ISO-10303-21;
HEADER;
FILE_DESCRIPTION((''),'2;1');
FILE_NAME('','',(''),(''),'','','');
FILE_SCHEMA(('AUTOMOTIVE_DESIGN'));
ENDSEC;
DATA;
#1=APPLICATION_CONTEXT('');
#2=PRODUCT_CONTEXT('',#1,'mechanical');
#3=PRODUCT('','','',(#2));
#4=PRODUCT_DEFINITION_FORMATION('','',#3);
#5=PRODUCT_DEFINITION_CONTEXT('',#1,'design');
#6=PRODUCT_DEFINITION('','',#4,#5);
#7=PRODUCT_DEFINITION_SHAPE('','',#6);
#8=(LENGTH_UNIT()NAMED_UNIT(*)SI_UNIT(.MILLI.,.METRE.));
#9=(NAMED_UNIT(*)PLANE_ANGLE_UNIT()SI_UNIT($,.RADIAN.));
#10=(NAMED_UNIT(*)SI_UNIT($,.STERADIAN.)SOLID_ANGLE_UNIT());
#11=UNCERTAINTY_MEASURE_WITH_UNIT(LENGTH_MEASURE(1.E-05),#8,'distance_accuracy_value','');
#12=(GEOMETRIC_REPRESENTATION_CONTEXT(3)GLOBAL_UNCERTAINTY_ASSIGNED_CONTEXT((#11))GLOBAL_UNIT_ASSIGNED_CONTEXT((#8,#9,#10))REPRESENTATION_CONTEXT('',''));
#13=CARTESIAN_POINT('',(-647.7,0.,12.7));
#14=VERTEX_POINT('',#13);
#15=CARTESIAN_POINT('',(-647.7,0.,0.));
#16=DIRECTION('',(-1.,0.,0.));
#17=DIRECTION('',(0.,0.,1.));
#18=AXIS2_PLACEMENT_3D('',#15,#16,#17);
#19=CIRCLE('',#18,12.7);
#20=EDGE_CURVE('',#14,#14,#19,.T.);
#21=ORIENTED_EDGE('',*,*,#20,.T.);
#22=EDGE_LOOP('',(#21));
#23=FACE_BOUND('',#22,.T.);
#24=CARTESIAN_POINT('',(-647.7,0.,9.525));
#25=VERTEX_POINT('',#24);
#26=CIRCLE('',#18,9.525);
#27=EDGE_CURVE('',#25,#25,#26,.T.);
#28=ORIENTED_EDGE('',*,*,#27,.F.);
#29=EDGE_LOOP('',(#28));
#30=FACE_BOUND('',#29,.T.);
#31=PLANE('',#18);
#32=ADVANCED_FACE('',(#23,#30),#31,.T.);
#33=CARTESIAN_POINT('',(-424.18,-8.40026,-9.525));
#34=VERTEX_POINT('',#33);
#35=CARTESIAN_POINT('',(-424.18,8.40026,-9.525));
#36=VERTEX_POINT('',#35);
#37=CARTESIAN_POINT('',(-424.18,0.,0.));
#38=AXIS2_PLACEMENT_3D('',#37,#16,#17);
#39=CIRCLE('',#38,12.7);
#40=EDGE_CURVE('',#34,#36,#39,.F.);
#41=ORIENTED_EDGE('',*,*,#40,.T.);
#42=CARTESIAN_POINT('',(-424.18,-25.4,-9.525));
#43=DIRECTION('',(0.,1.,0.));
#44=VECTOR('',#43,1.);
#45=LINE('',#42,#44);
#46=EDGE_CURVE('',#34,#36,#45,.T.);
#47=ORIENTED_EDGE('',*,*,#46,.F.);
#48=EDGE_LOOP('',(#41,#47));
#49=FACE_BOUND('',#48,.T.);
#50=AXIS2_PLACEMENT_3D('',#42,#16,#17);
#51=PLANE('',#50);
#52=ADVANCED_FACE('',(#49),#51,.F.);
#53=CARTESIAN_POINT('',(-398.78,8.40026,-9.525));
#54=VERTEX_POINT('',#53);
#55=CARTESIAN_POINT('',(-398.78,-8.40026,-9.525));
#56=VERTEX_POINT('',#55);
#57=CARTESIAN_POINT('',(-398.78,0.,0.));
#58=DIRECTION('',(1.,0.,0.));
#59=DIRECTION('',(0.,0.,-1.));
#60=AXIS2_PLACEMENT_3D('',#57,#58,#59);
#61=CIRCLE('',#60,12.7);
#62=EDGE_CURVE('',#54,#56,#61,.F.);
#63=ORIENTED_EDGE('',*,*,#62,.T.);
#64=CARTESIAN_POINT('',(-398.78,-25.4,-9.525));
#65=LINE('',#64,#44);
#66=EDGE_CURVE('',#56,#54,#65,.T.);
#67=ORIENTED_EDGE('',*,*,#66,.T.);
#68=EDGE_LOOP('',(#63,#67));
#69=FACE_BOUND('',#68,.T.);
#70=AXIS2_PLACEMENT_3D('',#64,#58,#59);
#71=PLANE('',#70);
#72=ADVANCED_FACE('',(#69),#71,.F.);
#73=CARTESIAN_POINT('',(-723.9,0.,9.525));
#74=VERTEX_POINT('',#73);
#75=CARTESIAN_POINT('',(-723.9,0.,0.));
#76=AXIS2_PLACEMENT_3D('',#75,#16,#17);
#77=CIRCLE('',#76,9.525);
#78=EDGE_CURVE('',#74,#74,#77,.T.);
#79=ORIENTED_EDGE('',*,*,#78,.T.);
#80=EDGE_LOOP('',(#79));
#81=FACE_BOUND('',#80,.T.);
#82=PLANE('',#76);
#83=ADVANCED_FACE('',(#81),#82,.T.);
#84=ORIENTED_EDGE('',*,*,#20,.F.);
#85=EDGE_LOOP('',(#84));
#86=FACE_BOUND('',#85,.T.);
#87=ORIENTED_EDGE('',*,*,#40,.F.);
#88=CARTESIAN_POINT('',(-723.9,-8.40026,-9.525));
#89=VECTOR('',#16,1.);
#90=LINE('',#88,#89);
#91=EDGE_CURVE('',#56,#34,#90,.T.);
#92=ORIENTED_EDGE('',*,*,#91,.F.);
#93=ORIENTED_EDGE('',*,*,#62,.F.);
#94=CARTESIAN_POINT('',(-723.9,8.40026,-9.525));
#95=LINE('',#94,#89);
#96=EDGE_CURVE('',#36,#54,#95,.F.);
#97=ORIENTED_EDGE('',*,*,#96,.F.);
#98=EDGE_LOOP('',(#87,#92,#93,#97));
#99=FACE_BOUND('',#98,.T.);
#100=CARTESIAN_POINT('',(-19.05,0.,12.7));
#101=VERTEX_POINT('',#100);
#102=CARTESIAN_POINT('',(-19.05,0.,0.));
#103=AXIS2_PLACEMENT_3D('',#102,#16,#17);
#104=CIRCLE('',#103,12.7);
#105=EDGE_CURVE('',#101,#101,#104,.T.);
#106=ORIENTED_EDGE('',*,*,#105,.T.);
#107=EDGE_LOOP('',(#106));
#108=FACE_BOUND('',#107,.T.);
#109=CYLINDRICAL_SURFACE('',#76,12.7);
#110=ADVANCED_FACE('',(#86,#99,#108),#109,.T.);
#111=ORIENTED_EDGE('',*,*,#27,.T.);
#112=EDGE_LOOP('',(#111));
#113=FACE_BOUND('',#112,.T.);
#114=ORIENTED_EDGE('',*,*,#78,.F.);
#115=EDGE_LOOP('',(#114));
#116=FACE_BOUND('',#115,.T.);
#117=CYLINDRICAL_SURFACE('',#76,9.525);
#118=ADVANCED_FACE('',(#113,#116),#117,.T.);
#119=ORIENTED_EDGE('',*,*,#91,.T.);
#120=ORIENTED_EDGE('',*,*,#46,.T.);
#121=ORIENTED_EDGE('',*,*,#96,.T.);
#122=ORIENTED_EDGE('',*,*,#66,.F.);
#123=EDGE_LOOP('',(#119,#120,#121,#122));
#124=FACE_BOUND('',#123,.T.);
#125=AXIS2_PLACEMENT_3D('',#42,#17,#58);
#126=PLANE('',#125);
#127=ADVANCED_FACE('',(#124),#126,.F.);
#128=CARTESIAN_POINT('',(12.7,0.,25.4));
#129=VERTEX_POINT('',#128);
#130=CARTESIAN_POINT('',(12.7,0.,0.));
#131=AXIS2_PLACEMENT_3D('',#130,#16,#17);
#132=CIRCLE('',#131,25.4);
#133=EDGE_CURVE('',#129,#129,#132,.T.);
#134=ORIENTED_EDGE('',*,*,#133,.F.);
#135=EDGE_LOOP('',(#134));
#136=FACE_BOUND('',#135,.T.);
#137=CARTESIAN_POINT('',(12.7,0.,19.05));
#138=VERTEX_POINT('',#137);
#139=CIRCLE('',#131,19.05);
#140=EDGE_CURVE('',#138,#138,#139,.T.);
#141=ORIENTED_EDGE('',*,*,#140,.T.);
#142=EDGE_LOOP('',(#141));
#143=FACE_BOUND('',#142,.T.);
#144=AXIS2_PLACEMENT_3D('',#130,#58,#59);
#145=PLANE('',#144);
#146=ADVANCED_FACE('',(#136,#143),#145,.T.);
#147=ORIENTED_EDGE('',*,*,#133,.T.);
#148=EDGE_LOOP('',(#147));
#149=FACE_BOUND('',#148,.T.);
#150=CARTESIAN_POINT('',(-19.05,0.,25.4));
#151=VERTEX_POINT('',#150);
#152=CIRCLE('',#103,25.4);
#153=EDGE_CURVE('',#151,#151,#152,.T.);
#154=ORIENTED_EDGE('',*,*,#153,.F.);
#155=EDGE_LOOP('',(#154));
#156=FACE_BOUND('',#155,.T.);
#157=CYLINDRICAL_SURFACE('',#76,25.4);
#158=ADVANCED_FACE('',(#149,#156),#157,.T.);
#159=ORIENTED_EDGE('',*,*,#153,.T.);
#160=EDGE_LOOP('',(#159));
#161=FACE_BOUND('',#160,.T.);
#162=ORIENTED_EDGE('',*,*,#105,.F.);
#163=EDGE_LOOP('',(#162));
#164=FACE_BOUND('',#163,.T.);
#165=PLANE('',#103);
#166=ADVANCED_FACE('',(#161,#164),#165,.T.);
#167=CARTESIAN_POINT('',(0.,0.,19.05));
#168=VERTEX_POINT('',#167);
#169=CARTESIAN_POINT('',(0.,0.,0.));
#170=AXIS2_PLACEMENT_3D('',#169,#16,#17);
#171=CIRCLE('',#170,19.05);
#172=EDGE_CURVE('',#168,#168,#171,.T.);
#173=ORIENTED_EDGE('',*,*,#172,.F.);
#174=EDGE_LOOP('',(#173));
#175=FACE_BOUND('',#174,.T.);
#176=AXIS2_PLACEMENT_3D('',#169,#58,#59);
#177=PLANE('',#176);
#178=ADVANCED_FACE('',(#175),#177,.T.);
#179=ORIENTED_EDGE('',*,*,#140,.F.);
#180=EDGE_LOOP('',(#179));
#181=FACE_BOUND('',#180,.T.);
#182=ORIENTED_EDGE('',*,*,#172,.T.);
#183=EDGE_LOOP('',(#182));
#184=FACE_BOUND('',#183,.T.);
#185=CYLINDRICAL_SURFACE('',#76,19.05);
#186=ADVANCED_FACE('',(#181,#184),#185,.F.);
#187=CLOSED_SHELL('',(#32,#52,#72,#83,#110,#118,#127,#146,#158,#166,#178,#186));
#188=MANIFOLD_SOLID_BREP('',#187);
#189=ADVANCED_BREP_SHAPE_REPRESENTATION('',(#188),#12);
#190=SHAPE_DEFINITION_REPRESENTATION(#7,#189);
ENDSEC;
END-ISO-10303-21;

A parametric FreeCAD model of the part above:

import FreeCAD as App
import Part
import Sketcher

V = App.Vector
Q = App.Units.Quantity

doc = App.newDocument("Part")
body = doc.addObject("PartDesign::Body", "Body")

sketch1 = body.newObject("Sketcher::SketchObject", "Sketch")
sketch1.AttachmentSupport = (doc.getObject("XZ_Plane"), [""])
sketch1.MapMode = "FlatFace"
sketch1.addGeometry([
    Part.LineSegment(V(-723.9, 0, 0), V(0, 0, 0)),
    Part.LineSegment(V(0, 0, 0), V(0, -19.1, 0)),
    Part.LineSegment(V(0, -19.1, 0), V(12.7, -19.1, 0)),
    Part.LineSegment(V(12.7, -19.1, 0), V(12.7, -25.4, 0)),
    Part.LineSegment(V(12.7, -25.4, 0), V(-19.1, -25.4, 0)),
    Part.LineSegment(V(-19.1, -25.4, 0), V(-19.1, -12.7, 0)),
    Part.LineSegment(V(-19.1, -12.7, 0), V(-647.7, -12.7, 0)),
    Part.LineSegment(V(-647.7, -12.7, 0), V(-647.7, -9.5, 0)),
    Part.LineSegment(V(-647.7, -9.5, 0), V(-723.9, -9.5, 0)),
    Part.LineSegment(V(-723.9, -9.5, 0), V(-723.9, 0, 0)),
], False)
sketch1.addConstraint([
    Sketcher.Constraint("Coincident", 0, 2, 1, 1),
    Sketcher.Constraint("Coincident", 1, 2, 2, 1),
    Sketcher.Constraint("Coincident", 2, 2, 3, 1),
    Sketcher.Constraint("Coincident", 3, 2, 4, 1),
    Sketcher.Constraint("Coincident", 4, 2, 5, 1),
    Sketcher.Constraint("Coincident", 5, 2, 6, 1),
    Sketcher.Constraint("Coincident", 6, 2, 7, 1),
    Sketcher.Constraint("Coincident", 7, 2, 8, 1),
    Sketcher.Constraint("Coincident", 8, 2, 9, 1),
    Sketcher.Constraint("Coincident", 9, 2, 0, 1),
    Sketcher.Constraint("Horizontal", 0),
    Sketcher.Constraint("Vertical", 1),
    Sketcher.Constraint("Horizontal", 2),
    Sketcher.Constraint("Vertical", 3),
    Sketcher.Constraint("Horizontal", 4),
    Sketcher.Constraint("Vertical", 5),
    Sketcher.Constraint("Horizontal", 6),
    Sketcher.Constraint("Vertical", 7),
    Sketcher.Constraint("Horizontal", 8),
    Sketcher.Constraint("Vertical", 9),
    Sketcher.Constraint("Coincident", 0, 2, -1, 1),
    Sketcher.Constraint("Equal", 2, 5),
    Sketcher.Constraint("DistanceX", 8, 2, 8, 1, Q("3 in")),
    Sketcher.Constraint("DistanceX", 0, 1, 0, 2, Q("28.5 in")),
    Sketcher.Constraint("DistanceX", 2, 1, 2, 2, Q("0.5 in")),
    Sketcher.Constraint("DistanceY", 3, 2, -1, 1, Q("1 in")),
    Sketcher.Constraint("DistanceX", 4, 2, 4, 1, Q("1.25 in")),
    Sketcher.Constraint("DistanceY", 1, 2, 1, 1, Q("0.75 in")),
    Sketcher.Constraint("DistanceY", 7, 1, 7, 2, Q("0.125 in")),
])
revolution = body.newObject("PartDesign::Revolution", "Revolution")
revolution.Profile = sketch1
revolution.ReferenceAxis = (sketch1, ["H_Axis"])
revolution.Angle = 360

sketch2 = body.newObject("Sketcher::SketchObject", "Sketch001")
sketch2.AttachmentSupport = (doc.getObject("XZ_Plane"), [""])
sketch2.MapMode = "FlatFace"
sketch2.addGeometry([
    Part.LineSegment(V(-424.2, -12.7, 0), V(-424.2, -9.5, 0)),
    Part.LineSegment(V(-424.2, -9.5, 0), V(-398.8, -9.5, 0)),
    Part.LineSegment(V(-398.8, -9.5, 0), V(-398.8, -12.7, 0)),
    Part.LineSegment(V(-398.8, -12.7, 0), V(-424.2, -12.7, 0)),
], False)
sketch2.addConstraint([
    Sketcher.Constraint("Coincident", 0, 2, 1, 1),
    Sketcher.Constraint("Coincident", 1, 2, 2, 1),
    Sketcher.Constraint("Coincident", 2, 2, 3, 1),
    Sketcher.Constraint("Coincident", 3, 2, 0, 1),
    Sketcher.Constraint("Vertical", 0),
    Sketcher.Constraint("Horizontal", 1),
    Sketcher.Constraint("Vertical", 2),
    Sketcher.Constraint("Horizontal", 3),
    Sketcher.Constraint("DistanceX", 1, 1, 1, 2, Q("1 in")),
    Sketcher.Constraint("DistanceX", 0, 2, -1, 1, Q("16.7 in")),
    Sketcher.Constraint("DistanceY", 2, 2, -1, 1, Q("0.5 in")),
    Sketcher.Constraint("DistanceY", 0, 1, 0, 2, Q("0.125 in")),
])
pocket1 = body.newObject("PartDesign::Pocket", "Pocket")
pocket1.Profile = sketch2
pocket1.Type = "ThroughAll"
pocket1.Midplane = True

doc.recompute()
